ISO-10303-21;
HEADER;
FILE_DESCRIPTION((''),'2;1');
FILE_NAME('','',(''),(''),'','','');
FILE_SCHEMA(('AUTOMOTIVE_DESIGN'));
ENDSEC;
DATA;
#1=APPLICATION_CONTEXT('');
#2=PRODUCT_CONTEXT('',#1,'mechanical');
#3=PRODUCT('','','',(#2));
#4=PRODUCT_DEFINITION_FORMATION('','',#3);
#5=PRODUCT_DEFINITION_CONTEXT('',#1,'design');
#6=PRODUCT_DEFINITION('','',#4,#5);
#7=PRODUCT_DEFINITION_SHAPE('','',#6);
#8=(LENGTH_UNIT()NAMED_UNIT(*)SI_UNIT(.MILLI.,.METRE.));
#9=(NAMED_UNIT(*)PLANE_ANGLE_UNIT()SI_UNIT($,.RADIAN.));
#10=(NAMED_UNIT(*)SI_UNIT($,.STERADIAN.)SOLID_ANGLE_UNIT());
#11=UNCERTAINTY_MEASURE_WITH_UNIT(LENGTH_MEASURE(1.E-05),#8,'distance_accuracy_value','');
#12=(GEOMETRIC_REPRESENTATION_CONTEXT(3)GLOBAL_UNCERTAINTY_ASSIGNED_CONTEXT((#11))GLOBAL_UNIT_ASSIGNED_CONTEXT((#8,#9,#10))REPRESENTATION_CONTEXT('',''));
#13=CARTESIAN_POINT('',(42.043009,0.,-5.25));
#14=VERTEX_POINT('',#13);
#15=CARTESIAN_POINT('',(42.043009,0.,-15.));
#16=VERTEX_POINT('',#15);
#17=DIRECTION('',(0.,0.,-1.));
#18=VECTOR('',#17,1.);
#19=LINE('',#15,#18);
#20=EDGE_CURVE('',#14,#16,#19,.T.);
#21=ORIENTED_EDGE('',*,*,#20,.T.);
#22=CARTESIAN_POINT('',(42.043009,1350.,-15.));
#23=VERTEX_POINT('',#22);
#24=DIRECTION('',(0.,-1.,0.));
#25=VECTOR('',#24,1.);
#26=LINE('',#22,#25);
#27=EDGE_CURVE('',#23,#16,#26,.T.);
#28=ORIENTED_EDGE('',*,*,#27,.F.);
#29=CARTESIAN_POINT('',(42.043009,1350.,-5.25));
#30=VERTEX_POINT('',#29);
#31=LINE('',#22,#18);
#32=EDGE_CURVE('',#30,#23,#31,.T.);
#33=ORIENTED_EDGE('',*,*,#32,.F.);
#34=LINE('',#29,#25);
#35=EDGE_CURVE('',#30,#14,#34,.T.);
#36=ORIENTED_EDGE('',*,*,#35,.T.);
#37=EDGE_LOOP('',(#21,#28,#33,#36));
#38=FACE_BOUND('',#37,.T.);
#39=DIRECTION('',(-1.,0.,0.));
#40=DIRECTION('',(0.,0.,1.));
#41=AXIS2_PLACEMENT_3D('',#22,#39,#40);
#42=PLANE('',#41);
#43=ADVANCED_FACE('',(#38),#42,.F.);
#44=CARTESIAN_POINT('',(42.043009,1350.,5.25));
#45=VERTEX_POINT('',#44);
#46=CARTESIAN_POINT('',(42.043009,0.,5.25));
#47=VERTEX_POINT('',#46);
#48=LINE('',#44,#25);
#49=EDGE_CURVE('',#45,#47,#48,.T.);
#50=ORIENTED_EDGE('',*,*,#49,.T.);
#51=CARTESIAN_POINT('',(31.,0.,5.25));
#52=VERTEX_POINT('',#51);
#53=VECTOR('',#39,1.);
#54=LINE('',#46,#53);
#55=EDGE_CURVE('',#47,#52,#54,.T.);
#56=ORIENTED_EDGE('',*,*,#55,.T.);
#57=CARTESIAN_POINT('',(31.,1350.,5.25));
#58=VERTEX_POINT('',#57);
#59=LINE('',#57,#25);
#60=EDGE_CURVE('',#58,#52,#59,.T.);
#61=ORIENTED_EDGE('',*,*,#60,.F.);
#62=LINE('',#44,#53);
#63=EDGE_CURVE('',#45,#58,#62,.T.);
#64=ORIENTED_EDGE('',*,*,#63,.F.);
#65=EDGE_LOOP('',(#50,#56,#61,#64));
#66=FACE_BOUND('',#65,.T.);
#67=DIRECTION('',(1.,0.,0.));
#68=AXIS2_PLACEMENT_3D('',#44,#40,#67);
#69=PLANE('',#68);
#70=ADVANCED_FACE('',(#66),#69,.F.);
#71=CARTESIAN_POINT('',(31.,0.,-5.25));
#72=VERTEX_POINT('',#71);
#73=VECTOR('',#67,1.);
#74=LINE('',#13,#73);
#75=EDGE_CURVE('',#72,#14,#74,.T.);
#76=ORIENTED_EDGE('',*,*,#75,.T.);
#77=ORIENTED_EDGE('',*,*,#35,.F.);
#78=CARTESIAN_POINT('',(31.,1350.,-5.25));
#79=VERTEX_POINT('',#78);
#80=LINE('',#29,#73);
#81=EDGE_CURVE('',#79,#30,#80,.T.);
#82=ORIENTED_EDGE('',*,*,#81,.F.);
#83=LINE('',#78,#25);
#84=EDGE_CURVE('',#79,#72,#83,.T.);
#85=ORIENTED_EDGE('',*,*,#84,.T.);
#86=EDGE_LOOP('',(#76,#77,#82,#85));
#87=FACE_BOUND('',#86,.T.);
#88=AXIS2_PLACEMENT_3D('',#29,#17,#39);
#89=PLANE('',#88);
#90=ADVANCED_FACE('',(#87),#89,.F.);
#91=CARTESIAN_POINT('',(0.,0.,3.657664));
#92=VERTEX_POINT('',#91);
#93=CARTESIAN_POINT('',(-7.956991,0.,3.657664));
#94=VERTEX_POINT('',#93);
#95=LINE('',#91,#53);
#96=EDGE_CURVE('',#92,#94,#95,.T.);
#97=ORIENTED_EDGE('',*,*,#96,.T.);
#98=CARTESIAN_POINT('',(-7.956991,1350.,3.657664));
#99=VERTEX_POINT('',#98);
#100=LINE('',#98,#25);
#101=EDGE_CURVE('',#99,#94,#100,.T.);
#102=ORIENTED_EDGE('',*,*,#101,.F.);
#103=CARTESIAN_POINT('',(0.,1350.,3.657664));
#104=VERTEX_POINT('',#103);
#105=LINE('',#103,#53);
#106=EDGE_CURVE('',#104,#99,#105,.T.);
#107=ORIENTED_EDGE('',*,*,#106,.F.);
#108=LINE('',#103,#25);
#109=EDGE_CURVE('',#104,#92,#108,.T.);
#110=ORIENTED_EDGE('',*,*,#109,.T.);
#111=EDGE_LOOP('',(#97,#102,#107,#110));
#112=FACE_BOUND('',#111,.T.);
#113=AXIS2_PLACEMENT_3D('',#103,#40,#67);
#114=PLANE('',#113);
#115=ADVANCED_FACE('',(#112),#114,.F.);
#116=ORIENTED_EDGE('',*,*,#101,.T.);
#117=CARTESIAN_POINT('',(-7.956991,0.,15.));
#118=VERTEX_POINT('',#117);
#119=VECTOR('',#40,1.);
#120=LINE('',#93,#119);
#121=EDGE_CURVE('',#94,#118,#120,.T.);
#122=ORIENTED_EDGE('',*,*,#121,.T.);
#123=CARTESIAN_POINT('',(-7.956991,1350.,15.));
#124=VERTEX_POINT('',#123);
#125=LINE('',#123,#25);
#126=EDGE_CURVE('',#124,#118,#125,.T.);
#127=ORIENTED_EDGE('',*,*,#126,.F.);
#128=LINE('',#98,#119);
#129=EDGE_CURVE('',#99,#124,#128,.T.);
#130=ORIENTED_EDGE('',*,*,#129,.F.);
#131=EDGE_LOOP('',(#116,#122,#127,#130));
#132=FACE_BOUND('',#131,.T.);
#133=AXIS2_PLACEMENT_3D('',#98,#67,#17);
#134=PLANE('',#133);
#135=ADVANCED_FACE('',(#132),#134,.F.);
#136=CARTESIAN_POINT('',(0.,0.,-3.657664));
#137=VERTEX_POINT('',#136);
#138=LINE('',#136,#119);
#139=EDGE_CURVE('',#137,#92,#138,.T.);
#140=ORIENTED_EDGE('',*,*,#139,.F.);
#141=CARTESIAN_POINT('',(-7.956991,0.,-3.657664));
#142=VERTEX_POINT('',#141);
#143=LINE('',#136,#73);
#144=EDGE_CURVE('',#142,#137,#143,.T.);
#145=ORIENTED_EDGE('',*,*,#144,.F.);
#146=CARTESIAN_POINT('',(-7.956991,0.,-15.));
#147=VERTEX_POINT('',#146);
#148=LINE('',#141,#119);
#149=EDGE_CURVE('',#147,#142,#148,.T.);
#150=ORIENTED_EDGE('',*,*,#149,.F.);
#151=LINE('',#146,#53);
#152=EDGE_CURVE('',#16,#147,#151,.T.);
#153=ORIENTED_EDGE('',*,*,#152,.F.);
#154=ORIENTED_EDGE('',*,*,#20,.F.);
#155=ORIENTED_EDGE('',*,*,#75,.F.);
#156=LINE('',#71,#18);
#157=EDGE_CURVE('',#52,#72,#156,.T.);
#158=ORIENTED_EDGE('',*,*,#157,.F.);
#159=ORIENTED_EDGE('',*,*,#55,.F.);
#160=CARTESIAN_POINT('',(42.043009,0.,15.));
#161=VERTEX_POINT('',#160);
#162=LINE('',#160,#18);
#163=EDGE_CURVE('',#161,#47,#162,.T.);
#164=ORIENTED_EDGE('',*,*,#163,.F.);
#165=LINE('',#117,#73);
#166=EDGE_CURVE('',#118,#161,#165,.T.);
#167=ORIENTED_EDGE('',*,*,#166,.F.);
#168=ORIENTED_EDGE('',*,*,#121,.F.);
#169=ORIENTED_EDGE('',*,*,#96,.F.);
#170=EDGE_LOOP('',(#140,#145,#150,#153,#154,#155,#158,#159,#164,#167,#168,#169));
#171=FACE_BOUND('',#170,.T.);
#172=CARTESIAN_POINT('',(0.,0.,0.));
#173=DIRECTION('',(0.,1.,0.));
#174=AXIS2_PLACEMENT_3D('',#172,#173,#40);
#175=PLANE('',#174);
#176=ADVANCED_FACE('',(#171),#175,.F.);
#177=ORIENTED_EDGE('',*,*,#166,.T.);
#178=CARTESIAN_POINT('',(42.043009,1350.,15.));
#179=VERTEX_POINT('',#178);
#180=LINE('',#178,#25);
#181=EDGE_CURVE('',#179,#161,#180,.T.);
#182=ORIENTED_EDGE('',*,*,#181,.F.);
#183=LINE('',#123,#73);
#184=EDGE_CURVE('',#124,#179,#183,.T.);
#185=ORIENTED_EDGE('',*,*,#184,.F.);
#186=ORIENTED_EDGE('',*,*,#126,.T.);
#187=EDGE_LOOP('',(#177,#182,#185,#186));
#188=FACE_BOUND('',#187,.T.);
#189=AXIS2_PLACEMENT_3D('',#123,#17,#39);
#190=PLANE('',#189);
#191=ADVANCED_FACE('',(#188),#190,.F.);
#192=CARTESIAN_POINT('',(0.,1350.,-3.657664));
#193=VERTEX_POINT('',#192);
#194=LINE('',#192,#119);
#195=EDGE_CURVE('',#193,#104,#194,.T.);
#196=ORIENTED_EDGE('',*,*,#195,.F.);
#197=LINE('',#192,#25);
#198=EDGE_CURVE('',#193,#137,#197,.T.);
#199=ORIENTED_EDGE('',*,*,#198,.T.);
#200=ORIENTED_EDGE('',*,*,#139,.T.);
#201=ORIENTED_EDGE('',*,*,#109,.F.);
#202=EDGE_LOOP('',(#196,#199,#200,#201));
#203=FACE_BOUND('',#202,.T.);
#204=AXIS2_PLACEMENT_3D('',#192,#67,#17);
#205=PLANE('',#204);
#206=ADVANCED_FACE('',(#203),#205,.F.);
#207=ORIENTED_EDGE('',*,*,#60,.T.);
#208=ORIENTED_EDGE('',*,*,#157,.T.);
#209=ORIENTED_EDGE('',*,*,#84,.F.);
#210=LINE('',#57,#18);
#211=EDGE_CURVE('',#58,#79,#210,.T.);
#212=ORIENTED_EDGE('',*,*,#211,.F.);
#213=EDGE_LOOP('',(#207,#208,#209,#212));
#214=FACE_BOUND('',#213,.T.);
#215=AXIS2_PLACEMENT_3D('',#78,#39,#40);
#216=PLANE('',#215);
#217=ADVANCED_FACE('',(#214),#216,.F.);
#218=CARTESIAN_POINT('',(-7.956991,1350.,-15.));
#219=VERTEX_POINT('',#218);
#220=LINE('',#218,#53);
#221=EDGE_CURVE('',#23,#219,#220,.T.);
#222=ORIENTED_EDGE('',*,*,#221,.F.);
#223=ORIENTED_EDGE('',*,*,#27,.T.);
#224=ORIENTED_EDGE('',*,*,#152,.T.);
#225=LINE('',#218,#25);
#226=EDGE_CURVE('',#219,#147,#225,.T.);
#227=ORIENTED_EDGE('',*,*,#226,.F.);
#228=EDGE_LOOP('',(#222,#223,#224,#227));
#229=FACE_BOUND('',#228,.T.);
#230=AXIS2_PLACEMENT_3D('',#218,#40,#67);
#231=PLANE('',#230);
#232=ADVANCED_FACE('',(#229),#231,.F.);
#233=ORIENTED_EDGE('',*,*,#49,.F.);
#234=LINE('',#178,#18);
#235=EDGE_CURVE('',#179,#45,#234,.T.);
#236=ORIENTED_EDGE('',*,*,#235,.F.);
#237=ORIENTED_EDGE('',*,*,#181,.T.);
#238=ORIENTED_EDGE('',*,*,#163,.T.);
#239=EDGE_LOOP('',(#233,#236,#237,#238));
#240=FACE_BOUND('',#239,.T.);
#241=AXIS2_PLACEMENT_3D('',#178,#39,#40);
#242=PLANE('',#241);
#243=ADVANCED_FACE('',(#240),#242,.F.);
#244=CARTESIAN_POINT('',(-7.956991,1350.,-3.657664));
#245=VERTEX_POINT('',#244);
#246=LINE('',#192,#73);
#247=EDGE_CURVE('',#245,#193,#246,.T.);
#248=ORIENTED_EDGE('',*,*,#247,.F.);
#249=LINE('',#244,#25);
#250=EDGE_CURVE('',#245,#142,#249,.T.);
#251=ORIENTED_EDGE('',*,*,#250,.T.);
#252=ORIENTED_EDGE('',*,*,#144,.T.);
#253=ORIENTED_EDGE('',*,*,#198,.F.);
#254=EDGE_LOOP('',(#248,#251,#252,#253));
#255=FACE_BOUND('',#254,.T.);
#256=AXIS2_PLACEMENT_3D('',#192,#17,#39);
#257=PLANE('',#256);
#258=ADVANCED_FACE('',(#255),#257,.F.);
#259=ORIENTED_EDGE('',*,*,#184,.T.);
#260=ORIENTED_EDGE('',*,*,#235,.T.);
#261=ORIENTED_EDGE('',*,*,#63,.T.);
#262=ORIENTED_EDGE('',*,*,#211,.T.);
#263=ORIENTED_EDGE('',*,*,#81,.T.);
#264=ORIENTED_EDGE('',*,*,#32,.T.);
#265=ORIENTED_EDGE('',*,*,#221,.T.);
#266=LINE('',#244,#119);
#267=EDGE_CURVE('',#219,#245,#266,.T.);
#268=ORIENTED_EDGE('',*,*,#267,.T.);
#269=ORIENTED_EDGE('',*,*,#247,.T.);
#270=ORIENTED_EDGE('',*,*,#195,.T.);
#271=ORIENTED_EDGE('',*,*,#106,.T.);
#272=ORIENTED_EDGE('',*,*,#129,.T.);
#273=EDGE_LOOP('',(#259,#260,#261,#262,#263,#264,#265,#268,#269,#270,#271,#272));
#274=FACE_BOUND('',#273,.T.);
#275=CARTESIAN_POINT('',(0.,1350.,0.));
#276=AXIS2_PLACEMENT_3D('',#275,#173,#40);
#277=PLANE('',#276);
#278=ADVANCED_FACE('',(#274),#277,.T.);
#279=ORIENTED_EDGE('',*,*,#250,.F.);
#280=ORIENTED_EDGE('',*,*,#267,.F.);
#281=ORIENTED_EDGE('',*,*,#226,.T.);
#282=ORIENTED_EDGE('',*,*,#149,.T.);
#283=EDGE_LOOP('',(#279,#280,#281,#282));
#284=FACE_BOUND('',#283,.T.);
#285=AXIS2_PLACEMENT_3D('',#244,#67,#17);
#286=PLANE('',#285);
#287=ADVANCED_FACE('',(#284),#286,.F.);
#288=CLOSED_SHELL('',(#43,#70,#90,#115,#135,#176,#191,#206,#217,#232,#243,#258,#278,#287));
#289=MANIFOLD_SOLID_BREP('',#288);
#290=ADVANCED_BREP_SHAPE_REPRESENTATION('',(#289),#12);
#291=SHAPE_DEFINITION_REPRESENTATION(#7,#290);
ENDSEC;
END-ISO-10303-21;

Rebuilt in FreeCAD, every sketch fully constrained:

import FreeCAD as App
import Part
import Sketcher
Q = App.Units.Quantity


def add_polygon(sketch, points):
    """Adds a closed chain of lines whose ends are joined by coincident constraints."""
    first, n = sketch.GeometryCount, len(points)
    for a, b in zip(points, points[1:] + points[:1]):
        sketch.addGeometry(Part.LineSegment(App.Vector(*a, 0), App.Vector(*b, 0)), False)
    for i in range(n):
        sketch.addConstraint(Sketcher.Constraint("Coincident", first + i, 2, first + (i + 1) % n, 1))

doc = App.newDocument("Part")
params = doc.addObject("Spreadsheet::Sheet", "Params")
for row, (alias, value) in enumerate([
    ("sketch1_width", "50 mm"),
    ("sketch1_height", "10.5 mm"),
    ("pad1_length", "1350 mm"),
], start=1):
    params.set(f"A{row}", alias)
    params.set(f"B{row}", "=" + value)
    params.setAlias(f"B{row}", alias)

body = doc.addObject("PartDesign::Body", "Body")

# Sketch on XZ plane
sketch1 = doc.addObject("Sketcher::SketchObject", "Sketch")
body.addObject(sketch1)
sketch1.AttachmentSupport = (doc.XZ_Plane, [""])
sketch1.MapMode = "FlatFace"
add_polygon(sketch1, [(0, -4), (0, 4), (-8, 4), (-8, 15), (42, 15), (42, 5), (31, 5), (31, -5), (42, -5), (42, -15), (-8, -15), (-8, -4)])  # lines 0-11
sketch1.addConstraint(Sketcher.Constraint("Vertical", 0))
sketch1.addConstraint(Sketcher.Constraint("Horizontal", 1))
sketch1.addConstraint(Sketcher.Constraint("Vertical", 2))
sketch1.addConstraint(Sketcher.Constraint("Horizontal", 3))
sketch1.addConstraint(Sketcher.Constraint("Vertical", 4))
sketch1.addConstraint(Sketcher.Constraint("Horizontal", 5))
sketch1.addConstraint(Sketcher.Constraint("Vertical", 6))
sketch1.addConstraint(Sketcher.Constraint("Horizontal", 7))
sketch1.addConstraint(Sketcher.Constraint("Vertical", 8))
sketch1.addConstraint(Sketcher.Constraint("Horizontal", 9))
sketch1.addConstraint(Sketcher.Constraint("Vertical", 10))
sketch1.addConstraint(Sketcher.Constraint("Horizontal", 11))
sketch1.addConstraint(Sketcher.Constraint("Symmetric", 0, 2, 11, 2, -1, 1))
sketch1.addConstraint(Sketcher.Constraint("Symmetric", 4, 2, 7, 2, -1))
sketch1.addConstraint(Sketcher.Constraint("Symmetric", 2, 2, 9, 2, -1))
sketch1.addConstraint(Sketcher.Constraint("DistanceX", 3, 1, 3, 2, Q("50 mm")))
sketch1.addConstraint(Sketcher.Constraint("DistanceY", 6, 2, 6, 1, Q("10.5 mm")))
sketch1.addConstraint(Sketcher.Constraint("DistanceY", -1, 1, 2, 2, Q("15 mm")))
sketch1.addConstraint(Sketcher.Constraint("DistanceX", -1, 1, 5, 2, Q("31 mm")))
sketch1.addConstraint(Sketcher.Constraint("DistanceX", 1, 2, 1, 1, Q("7.956991 mm")))
sketch1.addConstraint(Sketcher.Constraint("DistanceY", 0, 1, 0, 2, Q("7.315327 mm")))
sketch1.setExpression("Constraints[27]", "Params.sketch1_width")
sketch1.setExpression("Constraints[28]", "Params.sketch1_height")
pad1 = doc.addObject("PartDesign::Pad", "Pad")
body.addObject(pad1)
pad1.Profile = sketch1
pad1.setExpression("Length", "Params.pad1_length")
pad1.Reversed = True

doc.recompute()
